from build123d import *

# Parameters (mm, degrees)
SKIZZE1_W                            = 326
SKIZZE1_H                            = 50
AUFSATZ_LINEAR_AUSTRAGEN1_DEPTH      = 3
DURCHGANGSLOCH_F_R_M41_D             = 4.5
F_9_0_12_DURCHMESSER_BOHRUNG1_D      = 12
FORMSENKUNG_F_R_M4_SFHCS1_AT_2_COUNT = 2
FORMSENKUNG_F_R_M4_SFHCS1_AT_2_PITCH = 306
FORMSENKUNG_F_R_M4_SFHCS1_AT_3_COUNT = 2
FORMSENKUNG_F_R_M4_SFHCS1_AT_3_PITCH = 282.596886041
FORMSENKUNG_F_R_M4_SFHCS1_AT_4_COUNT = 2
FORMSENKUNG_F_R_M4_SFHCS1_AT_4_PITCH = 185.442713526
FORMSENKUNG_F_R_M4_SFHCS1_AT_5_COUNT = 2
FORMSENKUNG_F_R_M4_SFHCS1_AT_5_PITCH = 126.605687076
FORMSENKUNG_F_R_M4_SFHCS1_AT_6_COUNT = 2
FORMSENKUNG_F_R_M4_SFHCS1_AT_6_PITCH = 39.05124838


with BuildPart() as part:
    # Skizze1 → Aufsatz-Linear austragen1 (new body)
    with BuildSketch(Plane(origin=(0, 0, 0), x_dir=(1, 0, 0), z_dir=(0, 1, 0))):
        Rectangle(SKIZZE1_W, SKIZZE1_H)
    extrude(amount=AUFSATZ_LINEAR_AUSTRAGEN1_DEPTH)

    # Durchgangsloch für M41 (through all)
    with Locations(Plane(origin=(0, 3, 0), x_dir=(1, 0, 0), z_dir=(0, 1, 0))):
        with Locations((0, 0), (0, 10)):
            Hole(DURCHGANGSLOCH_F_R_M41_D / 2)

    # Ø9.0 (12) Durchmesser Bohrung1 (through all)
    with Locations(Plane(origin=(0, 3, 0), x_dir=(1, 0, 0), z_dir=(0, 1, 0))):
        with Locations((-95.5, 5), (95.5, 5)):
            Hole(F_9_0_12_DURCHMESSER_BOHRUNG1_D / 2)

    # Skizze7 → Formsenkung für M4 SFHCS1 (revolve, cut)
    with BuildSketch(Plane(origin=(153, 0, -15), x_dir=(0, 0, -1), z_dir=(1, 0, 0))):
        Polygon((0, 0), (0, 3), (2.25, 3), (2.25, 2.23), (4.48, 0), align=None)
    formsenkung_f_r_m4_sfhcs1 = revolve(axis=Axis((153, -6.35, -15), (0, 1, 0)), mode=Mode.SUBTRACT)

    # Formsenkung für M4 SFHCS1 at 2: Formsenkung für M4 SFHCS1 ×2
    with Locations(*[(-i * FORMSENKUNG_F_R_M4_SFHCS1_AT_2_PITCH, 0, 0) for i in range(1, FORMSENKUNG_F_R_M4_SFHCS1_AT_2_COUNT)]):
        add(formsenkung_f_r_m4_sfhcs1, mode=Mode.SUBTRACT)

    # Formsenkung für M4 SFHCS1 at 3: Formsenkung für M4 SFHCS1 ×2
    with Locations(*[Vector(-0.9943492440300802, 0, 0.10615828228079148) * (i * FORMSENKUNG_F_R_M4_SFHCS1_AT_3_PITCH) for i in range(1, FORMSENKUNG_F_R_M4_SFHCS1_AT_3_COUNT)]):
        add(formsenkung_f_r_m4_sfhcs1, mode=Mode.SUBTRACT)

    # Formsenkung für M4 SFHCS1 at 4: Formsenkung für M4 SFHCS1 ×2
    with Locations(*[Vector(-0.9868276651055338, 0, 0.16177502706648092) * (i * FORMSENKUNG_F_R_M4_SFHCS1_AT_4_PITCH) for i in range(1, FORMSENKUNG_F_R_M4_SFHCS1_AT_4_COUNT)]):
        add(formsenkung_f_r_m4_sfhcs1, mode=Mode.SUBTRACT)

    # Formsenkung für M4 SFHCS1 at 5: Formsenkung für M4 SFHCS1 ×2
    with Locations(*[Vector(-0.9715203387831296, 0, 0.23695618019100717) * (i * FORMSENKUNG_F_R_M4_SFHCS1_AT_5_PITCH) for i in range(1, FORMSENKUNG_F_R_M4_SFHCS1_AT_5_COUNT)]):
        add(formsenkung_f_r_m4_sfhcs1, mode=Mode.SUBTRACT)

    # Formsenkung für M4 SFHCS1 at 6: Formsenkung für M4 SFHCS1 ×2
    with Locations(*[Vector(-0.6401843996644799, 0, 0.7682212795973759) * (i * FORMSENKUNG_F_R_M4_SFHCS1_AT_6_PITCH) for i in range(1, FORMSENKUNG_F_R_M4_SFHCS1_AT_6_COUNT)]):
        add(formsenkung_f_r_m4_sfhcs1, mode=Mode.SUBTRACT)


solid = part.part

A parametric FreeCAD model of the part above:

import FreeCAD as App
import Part
import Sketcher
Q = App.Units.Quantity

doc = App.newDocument("Part")
body = doc.addObject("PartDesign::Body", "Body")

# Sketch on XZ plane
sketch1 = doc.addObject("Sketcher::SketchObject", "Sketch")
body.addObject(sketch1)
sketch1.AttachmentSupport = (doc.XZ_Plane, [""])
sketch1.MapMode = "FlatFace"
sketch1.addGeometry(Part.LineSegment(App.Vector(-163, -25, 0), App.Vector(-163, 25, 0)), False)
sketch1.addGeometry(Part.LineSegment(App.Vector(-163, 25, 0), App.Vector(163, 25, 0)), False)
sketch1.addGeometry(Part.LineSegment(App.Vector(163, 25, 0), App.Vector(163, -25, 0)), False)
sketch1.addGeometry(Part.LineSegment(App.Vector(163, -25, 0), App.Vector(-163, -25, 0)), False)
sketch1.addConstraint(Sketcher.Constraint("Coincident", 0, 2, 1, 1))
sketch1.addConstraint(Sketcher.Constraint("Coincident", 1, 2, 2, 1))
sketch1.addConstraint(Sketcher.Constraint("Coincident", 2, 2, 3, 1))
sketch1.addConstraint(Sketcher.Constraint("Coincident", 3, 2, 0, 1))
sketch1.addConstraint(Sketcher.Constraint("Vertical", 0))
sketch1.addConstraint(Sketcher.Constraint("Horizontal", 1))
sketch1.addConstraint(Sketcher.Constraint("Vertical", 2))
sketch1.addConstraint(Sketcher.Constraint("Horizontal", 3))
sketch1.addConstraint(Sketcher.Constraint("Symmetric", 0, 2, 2, 2, -1, 1))
sketch1.addConstraint(Sketcher.Constraint("DistanceX", 1, 1, 1, 2, Q("326 mm")))
sketch1.addConstraint(Sketcher.Constraint("DistanceY", 0, 1, 0, 2, Q("50 mm")))
pad1 = doc.addObject("PartDesign::Pad", "Pad")
body.addObject(pad1)
pad1.Profile = sketch1
pad1.Length = 3
pad1.Reversed = True

# Sketch on XZ plane
sketch2 = doc.addObject("Sketcher::SketchObject", "Sketch001")
body.addObject(sketch2)
sketch2.AttachmentSupport = (doc.XZ_Plane, [""])
sketch2.MapMode = "FlatFace"
sketch2.AttachmentOffset = App.Placement(App.Vector(0, 0, -3), App.Rotation())
sketch2.addGeometry(Part.Circle(App.Vector(0, 0, 0), App.Vector(0, 0, 1), 2.2), False)
sketch2.addGeometry(Part.Circle(App.Vector(0, -10, 0), App.Vector(0, 0, 1), 2.2), False)
sketch2.addConstraint(Sketcher.Constraint("Coincident", 0, 3, -1, 1))
sketch2.addConstraint(Sketcher.Constraint("Equal", 0, 1))
sketch2.addConstraint(Sketcher.Constraint("PointOnObject", 1, 3, -2))
sketch2.addConstraint(Sketcher.Constraint("Diameter", 0, Q("4.5 mm")))
sketch2.addConstraint(Sketcher.Constraint("DistanceY", 1, 3, -1, 1, Q("10 mm")))
doc.recompute()
hole = doc.addObject("PartDesign::Hole", "Hole")
body.addObject(hole)
hole.Profile = sketch2
hole.ThreadType = "None"
hole.Diameter = 4.5
hole.DepthType = "ThroughAll"
hole.Reversed = True

# Sketch on XZ plane
sketch3 = doc.addObject("Sketcher::SketchObject", "Sketch002")
body.addObject(sketch3)
sketch3.AttachmentSupport = (doc.XZ_Plane, [""])
sketch3.MapMode = "FlatFace"
sketch3.AttachmentOffset = App.Placement(App.Vector(0, 0, -3), App.Rotation())
sketch3.addGeometry(Part.Circle(App.Vector(-96, -5, 0), App.Vector(0, 0, 1), 6), False)
sketch3.addGeometry(Part.Circle(App.Vector(96, -5, 0), App.Vector(0, 0, 1), 6), False)
sketch3.addConstraint(Sketcher.Constraint("Equal", 0, 1))
sketch3.addConstraint(Sketcher.Constraint("Symmetric", 0, 3, 1, 3, -2))
sketch3.addConstraint(Sketcher.Constraint("Diameter", 0, Q("12 mm")))
sketch3.addConstraint(Sketcher.Constraint("DistanceY", 0, 3, -1, 1, Q("5 mm")))
sketch3.addConstraint(Sketcher.Constraint("DistanceX", 0, 3, 1, 3, Q("191 mm")))
doc.recompute()
hole2 = doc.addObject("PartDesign::Hole", "Hole001")
body.addObject(hole2)
hole2.Profile = sketch3
hole2.ThreadType = "None"
hole2.Diameter = 12
hole2.DepthType = "ThroughAll"
hole2.Reversed = True

# Sketch on YZ plane
sketch4 = doc.addObject("Sketcher::SketchObject", "Sketch003")
body.addObject(sketch4)
sketch4.AttachmentSupport = (doc.YZ_Plane, [""])
sketch4.MapMode = "FlatFace"
sketch4.AttachmentOffset = App.Placement(App.Vector(0, 0, 153), App.Rotation())
sketch4.addGeometry(Part.LineSegment(App.Vector(3, -15, 0), App.Vector(0, -15, 0)), False)
sketch4.addGeometry(Part.LineSegment(App.Vector(0, -15, 0), App.Vector(0, -19.5, 0)), False)
sketch4.addGeometry(Part.LineSegment(App.Vector(0, -19.5, 0), App.Vector(2.2, -17.2, 0)), False)
sketch4.addGeometry(Part.LineSegment(App.Vector(2.2, -17.2, 0), App.Vector(3, -17.2, 0)), False)
sketch4.addGeometry(Part.LineSegment(App.Vector(3, -17.2, 0), App.Vector(3, -15, 0)), False)
sketch4.addGeometry(Part.LineSegment(App.Vector(0, -15, 0), App.Vector(3, -15, 0)), True)  # axis
sketch4.addConstraint(Sketcher.Constraint("Coincident", 0, 2, 1, 1))
sketch4.addConstraint(Sketcher.Constraint("Coincident", 1, 2, 2, 1))
sketch4.addConstraint(Sketcher.Constraint("Coincident", 2, 2, 3, 1))
sketch4.addConstraint(Sketcher.Constraint("Coincident", 3, 2, 4, 1))
sketch4.addConstraint(Sketcher.Constraint("Coincident", 4, 2, 0, 1))
sketch4.addConstraint(Sketcher.Constraint("Horizontal", 0))
sketch4.addConstraint(Sketcher.Constraint("Vertical", 1))
sketch4.addConstraint(Sketcher.Constraint("Horizontal", 3))
sketch4.addConstraint(Sketcher.Constraint("Vertical", 4))
sketch4.addConstraint(Sketcher.Constraint("Horizontal", 5))
sketch4.addConstraint(Sketcher.Constraint("Coincident", 5, 1, 0, 2))
sketch4.addConstraint(Sketcher.Constraint("PointOnObject", 0, 2, -2))
sketch4.addConstraint(Sketcher.Constraint("Vertical", 3, 2, 5, 2))
sketch4.addConstraint(Sketcher.Constraint("DistanceX", 0, 2, 0, 1, Q("3 mm")))
sketch4.addConstraint(Sketcher.Constraint("Angle", 2, Q("45 deg")))
sketch4.addConstraint(Sketcher.Constraint("DistanceY", 0, 2, -1, 1, Q("15 mm")))
sketch4.addConstraint(Sketcher.Constraint("DistanceX", 3, 1, 3, 2, Q("0.77 mm")))
sketch4.addConstraint(Sketcher.Constraint("DistanceY", 1, 2, 1, 1, Q("4.48 mm")))
groove = doc.addObject("PartDesign::Groove", "Groove")
body.addObject(groove)
groove.Profile = sketch4
groove.ReferenceAxis = (sketch4, ["Axis0"])
groove.Angle = 360
doc.recompute()

linearpattern = doc.addObject("PartDesign::LinearPattern", "LinearPattern")
body.addObject(linearpattern)
linearpattern.Originals = [groove]
linearpattern.Direction = (doc.X_Axis, [""])
linearpattern.Mode = "offset"
linearpattern.Offset = 306
linearpattern.Occurrences = 2
linearpattern.Reversed = True
body.Tip = linearpattern
doc.recompute()

datumline = doc.addObject("PartDesign::Line", "DatumLine")
body.addObject(datumline)
datumline.Placement = App.Placement(App.Vector(0, 0, 0), App.Rotation(App.Vector(0, 0, 1), App.Vector(-0.994349244, 0, 0.106158282)))
linearpattern2 = doc.addObject("PartDesign::LinearPattern", "LinearPattern001")
body.addObject(linearpattern2)
linearpattern2.Originals = [groove]
linearpattern2.Direction = (datumline, [""])
linearpattern2.Mode = "offset"
linearpattern2.Offset = 282.596886
linearpattern2.Occurrences = 2
body.Tip = linearpattern2
doc.recompute()

datumline2 = doc.addObject("PartDesign::Line", "DatumLine001")
body.addObject(datumline2)
datumline2.Placement = App.Placement(App.Vector(0, 0, 0), App.Rotation(App.Vector(0, 0, 1), App.Vector(-0.986827665, 0, 0.161775027)))
linearpattern3 = doc.addObject("PartDesign::LinearPattern", "LinearPattern002")
body.addObject(linearpattern3)
linearpattern3.Originals = [groove]
linearpattern3.Direction = (datumline2, [""])
linearpattern3.Mode = "offset"
linearpattern3.Offset = 185.442714
linearpattern3.Occurrences = 2
body.Tip = linearpattern3
doc.recompute()

datumline3 = doc.addObject("PartDesign::Line", "DatumLine002")
body.addObject(datumline3)
datumline3.Placement = App.Placement(App.Vector(0, 0, 0), App.Rotation(App.Vector(0, 0, 1), App.Vector(-0.971520339, 0, 0.23695618)))
linearpattern4 = doc.addObject("PartDesign::LinearPattern", "LinearPattern003")
body.addObject(linearpattern4)
linearpattern4.Originals = [groove]
linearpattern4.Direction = (datumline3, [""])
linearpattern4.Mode = "offset"
linearpattern4.Offset = 126.605687
linearpattern4.Occurrences = 2
body.Tip = linearpattern4
doc.recompute()

datumline4 = doc.addObject("PartDesign::Line", "DatumLine003")
body.addObject(datumline4)
datumline4.Placement = App.Placement(App.Vector(0, 0, 0), App.Rotation(App.Vector(0, 0, 1), App.Vector(-0.6401844, 0, 0.76822128)))
linearpattern5 = doc.addObject("PartDesign::LinearPattern", "LinearPattern004")
body.addObject(linearpattern5)
linearpattern5.Originals = [groove]
linearpattern5.Direction = (datumline4, [""])
linearpattern5.Mode = "offset"
linearpattern5.Offset = 39.051248
linearpattern5.Occurrences = 2
body.Tip = linearpattern5

doc.recompute()
